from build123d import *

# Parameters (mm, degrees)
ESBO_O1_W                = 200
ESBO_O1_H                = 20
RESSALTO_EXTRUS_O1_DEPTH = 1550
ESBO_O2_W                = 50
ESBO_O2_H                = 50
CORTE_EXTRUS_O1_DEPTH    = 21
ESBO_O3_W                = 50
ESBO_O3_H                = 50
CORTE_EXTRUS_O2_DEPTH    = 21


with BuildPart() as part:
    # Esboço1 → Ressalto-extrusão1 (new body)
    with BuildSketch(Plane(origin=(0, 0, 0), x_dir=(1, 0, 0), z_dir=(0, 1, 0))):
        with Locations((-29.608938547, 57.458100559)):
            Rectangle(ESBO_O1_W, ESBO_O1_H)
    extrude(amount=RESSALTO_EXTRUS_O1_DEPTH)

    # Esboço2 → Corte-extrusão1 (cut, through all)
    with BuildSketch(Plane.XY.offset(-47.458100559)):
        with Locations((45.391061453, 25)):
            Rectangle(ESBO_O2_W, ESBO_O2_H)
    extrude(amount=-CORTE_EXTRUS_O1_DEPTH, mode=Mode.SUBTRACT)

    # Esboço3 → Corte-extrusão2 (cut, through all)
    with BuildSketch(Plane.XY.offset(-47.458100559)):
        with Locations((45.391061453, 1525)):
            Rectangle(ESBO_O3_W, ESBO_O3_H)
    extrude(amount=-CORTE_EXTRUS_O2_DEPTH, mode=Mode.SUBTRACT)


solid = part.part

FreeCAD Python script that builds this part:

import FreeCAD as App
import Part
import Sketcher
from FreeCAD import Vector
Q = App.Units.Quantity


def add_polygon(sketch, points):
    """Adds a closed chain of lines whose ends are joined by coincident constraints."""
    first, n = sketch.GeometryCount, len(points)
    for a, b in zip(points, points[1:] + points[:1]):
        sketch.addGeometry(Part.LineSegment(App.Vector(*a, 0), App.Vector(*b, 0)), False)
    for i in range(n):
        sketch.addConstraint(Sketcher.Constraint("Coincident", first + i, 2, first + (i + 1) % n, 1))

doc = App.newDocument("Part")
params = doc.addObject("Spreadsheet::Sheet", "Params")
for row, (alias, value) in enumerate([
    ("sketch1_width", "200 mm"),
    ("sketch1_height", "20 mm"),
    ("pad1_length", "1550 mm"),
    ("sketch2_width", "50 mm"),
    ("sketch3_width", "50 mm"),
], start=1):
    params.set(f"A{row}", alias)
    params.set(f"B{row}", "=" + value)
    params.setAlias(f"B{row}", alias)

body = doc.addObject("PartDesign::Body", "Body")

# Sketch on XZ plane
sketch1 = doc.addObject("Sketcher::SketchObject", "Sketch")
body.addObject(sketch1)
sketch1.AttachmentSupport = (doc.XZ_Plane, [""])
sketch1.MapMode = "FlatFace"
add_polygon(sketch1, [(-129.608939, -67.458101), (-129.608939, -47.458101), (70.391061, -47.458101), (70.391061, -67.458101)])  # lines 0-3
sketch1.addConstraint(Sketcher.Constraint("Vertical", 0))
sketch1.addConstraint(Sketcher.Constraint("Horizontal", 1))
sketch1.addConstraint(Sketcher.Constraint("Vertical", 2))
sketch1.addConstraint(Sketcher.Constraint("Horizontal", 3))
sketch1.addConstraint(Sketcher.Constraint("DistanceX", 1, 1, 1, 2, Q("200 mm")))
sketch1.addConstraint(Sketcher.Constraint("DistanceY", 0, 1, 0, 2, Q("20 mm")))
sketch1.addConstraint(Sketcher.Constraint("DistanceY", 0, 2, -1, 1, Q("47.458101 mm")))
sketch1.addConstraint(Sketcher.Constraint("DistanceX", 0, 2, -1, 1, Q("129.608939 mm")))
sketch1.setExpression("Constraints[8]", "Params.sketch1_width")
sketch1.setExpression("Constraints[9]", "Params.sketch1_height")
pad1 = doc.addObject("PartDesign::Pad", "Pad")
body.addObject(pad1)
pad1.Profile = sketch1
pad1.setExpression("Length", "Params.pad1_length")
pad1.Reversed = True

# Sketch on XY plane
sketch2 = doc.addObject("Sketcher::SketchObject", "Sketch001")
body.addObject(sketch2)
sketch2.AttachmentSupport = (doc.XY_Plane, [""])
sketch2.MapMode = "FlatFace"
sketch2.AttachmentOffset = App.Placement(Vector(0, 0, -47.458101), App.Rotation())
add_polygon(sketch2, [(20.391061, 50), (20.391061, 0), (70.391061, 0), (70.391061, 50)])  # lines 0-3
sketch2.addConstraint(Sketcher.Constraint("Vertical", 0))
sketch2.addConstraint(Sketcher.Constraint("Horizontal", 1))
sketch2.addConstraint(Sketcher.Constraint("Vertical", 2))
sketch2.addConstraint(Sketcher.Constraint("Horizontal", 3))
sketch2.addConstraint(Sketcher.Constraint("PointOnObject", 0, 2, -1))
sketch2.addConstraint(Sketcher.Constraint("Equal", 3, 0))
sketch2.addConstraint(Sketcher.Constraint("DistanceX", 1, 1, 1, 2, Q("50 mm")))
sketch2.addConstraint(Sketcher.Constraint("DistanceX", -1, 1, 0, 2, Q("20.391061 mm")))
sketch2.setExpression("Constraints[10]", "Params.sketch2_width")
pocket1 = doc.addObject("PartDesign::Pocket", "Pocket")
body.addObject(pocket1)
pocket1.Profile = sketch2
pocket1.Type = "ThroughAll"

# Sketch on XY plane
sketch3 = doc.addObject("Sketcher::SketchObject", "Sketch002")
body.addObject(sketch3)
sketch3.AttachmentSupport = (doc.XY_Plane, [""])
sketch3.MapMode = "FlatFace"
sketch3.AttachmentOffset = App.Placement(Vector(0, 0, -47.458101), App.Rotation())
add_polygon(sketch3, [(20.391061, 1550), (20.391061, 1500), (70.391061, 1500), (70.391061, 1550)])  # lines 0-3
sketch3.addConstraint(Sketcher.Constraint("Vertical", 0))
sketch3.addConstraint(Sketcher.Constraint("Horizontal", 1))
sketch3.addConstraint(Sketcher.Constraint("Vertical", 2))
sketch3.addConstraint(Sketcher.Constraint("Horizontal", 3))
sketch3.addConstraint(Sketcher.Constraint("Equal", 3, 0))
sketch3.addConstraint(Sketcher.Constraint("DistanceX", 1, 1, 1, 2, Q("50 mm")))
sketch3.addConstraint(Sketcher.Constraint("DistanceY", -1, 1, 0, 2, Q("1500 mm")))
sketch3.addConstraint(Sketcher.Constraint("DistanceX", -1, 1, 0, 2, Q("20.391061 mm")))
sketch3.setExpression("Constraints[9]", "Params.sketch3_width")
pocket2 = doc.addObject("PartDesign::Pocket", "Pocket001")
body.addObject(pocket2)
pocket2.Profile = sketch3
pocket2.Type = "ThroughAll"

doc.recompute()
